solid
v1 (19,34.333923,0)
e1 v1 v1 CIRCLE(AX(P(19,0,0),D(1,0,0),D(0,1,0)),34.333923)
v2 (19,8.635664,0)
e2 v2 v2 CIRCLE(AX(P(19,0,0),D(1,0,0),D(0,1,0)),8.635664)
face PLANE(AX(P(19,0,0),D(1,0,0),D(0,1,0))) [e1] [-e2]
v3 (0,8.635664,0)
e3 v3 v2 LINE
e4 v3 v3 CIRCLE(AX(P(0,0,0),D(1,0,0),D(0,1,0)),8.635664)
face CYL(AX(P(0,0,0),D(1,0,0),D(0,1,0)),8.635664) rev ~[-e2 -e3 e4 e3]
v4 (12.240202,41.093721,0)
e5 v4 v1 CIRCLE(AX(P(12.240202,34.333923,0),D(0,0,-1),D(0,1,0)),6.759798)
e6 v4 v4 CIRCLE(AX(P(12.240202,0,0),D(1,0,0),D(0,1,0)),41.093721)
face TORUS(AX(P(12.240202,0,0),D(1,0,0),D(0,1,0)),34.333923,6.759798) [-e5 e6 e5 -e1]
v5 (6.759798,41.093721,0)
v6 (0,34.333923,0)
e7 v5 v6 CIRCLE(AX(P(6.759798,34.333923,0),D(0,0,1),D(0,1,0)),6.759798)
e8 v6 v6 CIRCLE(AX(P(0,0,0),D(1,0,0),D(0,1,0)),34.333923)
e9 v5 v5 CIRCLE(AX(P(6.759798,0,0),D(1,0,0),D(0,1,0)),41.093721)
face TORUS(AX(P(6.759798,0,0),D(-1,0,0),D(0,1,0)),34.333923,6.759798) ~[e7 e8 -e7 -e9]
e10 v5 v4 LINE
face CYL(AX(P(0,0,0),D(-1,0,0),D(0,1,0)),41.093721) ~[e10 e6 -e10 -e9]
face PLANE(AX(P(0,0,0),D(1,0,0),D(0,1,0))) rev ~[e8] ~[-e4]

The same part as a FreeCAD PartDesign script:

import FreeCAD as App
import Part
import Sketcher
Q = App.Units.Quantity


def edges_at(feature, points):
    """Names of the edges that pass closest to the given points."""
    edges = feature.Shape.Edges
    near = lambda p: min(range(len(edges)), key=lambda i: edges[i].distToShape(Part.Vertex(*p))[0])
    return sorted({f"Edge{near(p) + 1}" for p in points})

doc = App.newDocument("Part")
params = doc.addObject("Spreadsheet::Sheet", "Params")
for row, (alias, value) in enumerate([
    ("pad1_length", "19 mm"),
    ("fillet_radius", "6.759798 mm"),
    ("pocket1_length", "68.2 mm"),
], start=1):
    params.set(f"A{row}", alias)
    params.set(f"B{row}", "=" + value)
    params.setAlias(f"B{row}", alias)

body = doc.addObject("PartDesign::Body", "Body")

sketch1 = body.newObject("Sketcher::SketchObject", "Sketch")
sketch1.AttachmentSupport = (doc.getObject("YZ_Plane"), [""])
sketch1.MapMode = "FlatFace"
sketch1.addGeometry(Part.Circle(App.Vector(0, 0, 0), App.Vector(0, 0, 1), 41.093721), False)
sketch1.addConstraint(Sketcher.Constraint("Coincident", 0, 3, -1, 1))
sketch1.addConstraint(Sketcher.Constraint("Diameter", 0, Q("82.187442 mm")))
pad1 = body.newObject("PartDesign::Pad", "Pad")
pad1.Profile = sketch1
pad1.setExpression("Length", "Params.pad1_length")
doc.recompute()

fillet = body.newObject("PartDesign::Fillet", "Fillet")
fillet.Base = (pad1, edges_at(pad1, [(19, -41.094, 0), (0, -41.094, 0)]))
fillet.setExpression("Radius", "Params.fillet_radius")

sketch2 = body.newObject("Sketcher::SketchObject", "Sketch001")
sketch2.AttachmentSupport = (doc.getObject("YZ_Plane"), [""])
sketch2.MapMode = "FlatFace"
sketch2.addGeometry(Part.Circle(App.Vector(0, 0, 0), App.Vector(0, 0, 1), 8.635664), False)
sketch2.addConstraint(Sketcher.Constraint("Coincident", 0, 3, -1, 1))
sketch2.addConstraint(Sketcher.Constraint("Diameter", 0, Q("17.271328 mm")))
pocket1 = body.newObject("PartDesign::Pocket", "Pocket")
pocket1.Profile = sketch2
pocket1.setExpression("Length", "Params.pocket1_length")
pocket1.Midplane = True

doc.recompute()
